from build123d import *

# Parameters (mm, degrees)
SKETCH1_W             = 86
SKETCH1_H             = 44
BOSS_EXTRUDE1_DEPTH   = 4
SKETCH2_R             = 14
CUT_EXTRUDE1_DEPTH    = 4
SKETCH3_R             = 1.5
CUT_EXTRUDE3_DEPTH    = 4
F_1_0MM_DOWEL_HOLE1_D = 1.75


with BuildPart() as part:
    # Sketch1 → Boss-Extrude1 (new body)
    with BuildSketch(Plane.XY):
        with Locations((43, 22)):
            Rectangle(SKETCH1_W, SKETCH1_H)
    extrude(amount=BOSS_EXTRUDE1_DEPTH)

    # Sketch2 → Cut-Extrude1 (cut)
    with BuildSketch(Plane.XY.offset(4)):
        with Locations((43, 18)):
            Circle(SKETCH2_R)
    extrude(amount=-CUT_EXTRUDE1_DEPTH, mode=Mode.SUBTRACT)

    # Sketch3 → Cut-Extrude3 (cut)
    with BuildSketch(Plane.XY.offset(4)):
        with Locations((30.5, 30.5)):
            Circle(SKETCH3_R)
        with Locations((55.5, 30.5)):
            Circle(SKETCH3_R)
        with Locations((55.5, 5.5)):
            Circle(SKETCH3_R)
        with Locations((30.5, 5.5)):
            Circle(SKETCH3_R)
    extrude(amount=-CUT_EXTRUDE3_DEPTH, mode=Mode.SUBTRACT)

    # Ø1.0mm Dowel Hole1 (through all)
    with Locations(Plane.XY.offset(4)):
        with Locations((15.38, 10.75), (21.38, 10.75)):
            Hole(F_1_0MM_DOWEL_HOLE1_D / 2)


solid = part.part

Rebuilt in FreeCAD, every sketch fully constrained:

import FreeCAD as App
import Part
import Sketcher


def add_polygon(sketch, points):
    """Adds a closed chain of lines whose ends are joined by coincident constraints."""
    first, n = sketch.GeometryCount, len(points)
    for a, b in zip(points, points[1:] + points[:1]):
        sketch.addGeometry(Part.LineSegment(App.Vector(*a, 0), App.Vector(*b, 0)), False)
    for i in range(n):
        sketch.addConstraint(Sketcher.Constraint("Coincident", first + i, 2, first + (i + 1) % n, 1))

doc = App.newDocument("Part")
body = doc.addObject("PartDesign::Body", "Body")

# Sketch on XY plane
sketch1 = body.newObject("Sketcher::SketchObject", "Sketch")
sketch1.AttachmentSupport = (doc.getObject("XY_Plane"), [""])
sketch1.MapMode = "FlatFace"
add_polygon(sketch1, [(0, 44), (0, 0), (86, 0), (86, 44)])  # lines 0-3
sketch1.addConstraint(Sketcher.Constraint("Vertical", 0))
sketch1.addConstraint(Sketcher.Constraint("Horizontal", 1))
sketch1.addConstraint(Sketcher.Constraint("Vertical", 2))
sketch1.addConstraint(Sketcher.Constraint("Horizontal", 3))
sketch1.addConstraint(Sketcher.Constraint("Coincident", 0, 2, -1, 1))
sketch1.addConstraint(Sketcher.Constraint("DistanceX", 1, 1, 1, 2, 86.0))
sketch1.addConstraint(Sketcher.Constraint("DistanceY", 0, 2, 0, 1, 44.0))
pad1 = body.newObject("PartDesign::Pad", "Pad")
pad1.Profile = sketch1
pad1.Length = 4

# Sketch on XY plane
sketch2 = body.newObject("Sketcher::SketchObject", "Sketch001")
sketch2.AttachmentSupport = (doc.getObject("XY_Plane"), [""])
sketch2.MapMode = "FlatFace"
sketch2.AttachmentOffset = App.Placement(App.Vector(0, 0, 4), App.Rotation())
sketch2.addGeometry(Part.Circle(App.Vector(43, 18, 0), App.Vector(0, 0, 1), 14), False)
sketch2.addConstraint(Sketcher.Constraint("Diameter", 0, 28.0))
sketch2.addConstraint(Sketcher.Constraint("DistanceX", -1, 1, 0, 3, 43.0))
sketch2.addConstraint(Sketcher.Constraint("DistanceY", -1, 1, 0, 3, 18.0))
pocket1 = body.newObject("PartDesign::Pocket", "Pocket")
pocket1.Profile = sketch2
pocket1.Length = 4

# Sketch on XY plane
sketch3 = body.newObject("Sketcher::SketchObject", "Sketch002")
sketch3.AttachmentSupport = (doc.getObject("XY_Plane"), [""])
sketch3.MapMode = "FlatFace"
sketch3.AttachmentOffset = App.Placement(App.Vector(0, 0, 4), App.Rotation())
sketch3.addGeometry(Part.Circle(App.Vector(30.5, 30.5, 0), App.Vector(0, 0, 1), 1.5), False)
sketch3.addGeometry(Part.Circle(App.Vector(55.5, 30.5, 0), App.Vector(0, 0, 1), 1.5), False)
sketch3.addGeometry(Part.Circle(App.Vector(55.5, 5.5, 0), App.Vector(0, 0, 1), 1.5), False)
sketch3.addGeometry(Part.Circle(App.Vector(30.5, 5.5, 0), App.Vector(0, 0, 1), 1.5), False)
sketch3.addConstraint(Sketcher.Constraint("Equal", 0, 1))
sketch3.addConstraint(Sketcher.Constraint("Equal", 1, 2))
sketch3.addConstraint(Sketcher.Constraint("Equal", 2, 3))
sketch3.addConstraint(Sketcher.Constraint("Horizontal", 0, 3, 1, 3))
sketch3.addConstraint(Sketcher.Constraint("Horizontal", 2, 3, 3, 3))
sketch3.addConstraint(Sketcher.Constraint("Vertical", 1, 3, 2, 3))
sketch3.addConstraint(Sketcher.Constraint("Vertical", 0, 3, 3, 3))
sketch3.addConstraint(Sketcher.Constraint("Diameter", 0, 3.0))
sketch3.addConstraint(Sketcher.Constraint("DistanceX", 0, 3, 1, 3, 25.0))
sketch3.addConstraint(Sketcher.Constraint("DistanceY", 2, 3, 1, 3, 25.0))
sketch3.addConstraint(Sketcher.Constraint("DistanceX", -1, 1, 0, 3, 30.5))
sketch3.addConstraint(Sketcher.Constraint("DistanceY", -1, 1, 0, 3, 30.5))
pocket2 = body.newObject("PartDesign::Pocket", "Pocket001")
pocket2.Profile = sketch3
pocket2.Length = 4

# Sketch on XY plane
sketch4 = body.newObject("Sketcher::SketchObject", "Sketch003")
sketch4.AttachmentSupport = (doc.getObject("XY_Plane"), [""])
sketch4.MapMode = "FlatFace"
sketch4.AttachmentOffset = App.Placement(App.Vector(0, 0, 4), App.Rotation())
sketch4.addGeometry(Part.Circle(App.Vector(15.4, 10.8, 0), App.Vector(0, 0, 1), 0.9), False)
sketch4.addGeometry(Part.Circle(App.Vector(21.4, 10.8, 0), App.Vector(0, 0, 1), 0.9), False)
sketch4.addConstraint(Sketcher.Constraint("Equal", 0, 1))
sketch4.addConstraint(Sketcher.Constraint("Horizontal", 0, 3, 1, 3))
sketch4.addConstraint(Sketcher.Constraint("Diameter", 0, 1.75))
sketch4.addConstraint(Sketcher.Constraint("DistanceX", 0, 3, 1, 3, 6.0))
sketch4.addConstraint(Sketcher.Constraint("DistanceX", -1, 1, 0, 3, 15.38))
sketch4.addConstraint(Sketcher.Constraint("DistanceY", -1, 1, 0, 3, 10.75))
doc.recompute()
hole = body.newObject("PartDesign::Hole", "Hole")
hole.Profile = sketch4
hole.ThreadType = "None"
hole.Diameter = 1.75
hole.DepthType = "ThroughAll"

doc.recompute()
